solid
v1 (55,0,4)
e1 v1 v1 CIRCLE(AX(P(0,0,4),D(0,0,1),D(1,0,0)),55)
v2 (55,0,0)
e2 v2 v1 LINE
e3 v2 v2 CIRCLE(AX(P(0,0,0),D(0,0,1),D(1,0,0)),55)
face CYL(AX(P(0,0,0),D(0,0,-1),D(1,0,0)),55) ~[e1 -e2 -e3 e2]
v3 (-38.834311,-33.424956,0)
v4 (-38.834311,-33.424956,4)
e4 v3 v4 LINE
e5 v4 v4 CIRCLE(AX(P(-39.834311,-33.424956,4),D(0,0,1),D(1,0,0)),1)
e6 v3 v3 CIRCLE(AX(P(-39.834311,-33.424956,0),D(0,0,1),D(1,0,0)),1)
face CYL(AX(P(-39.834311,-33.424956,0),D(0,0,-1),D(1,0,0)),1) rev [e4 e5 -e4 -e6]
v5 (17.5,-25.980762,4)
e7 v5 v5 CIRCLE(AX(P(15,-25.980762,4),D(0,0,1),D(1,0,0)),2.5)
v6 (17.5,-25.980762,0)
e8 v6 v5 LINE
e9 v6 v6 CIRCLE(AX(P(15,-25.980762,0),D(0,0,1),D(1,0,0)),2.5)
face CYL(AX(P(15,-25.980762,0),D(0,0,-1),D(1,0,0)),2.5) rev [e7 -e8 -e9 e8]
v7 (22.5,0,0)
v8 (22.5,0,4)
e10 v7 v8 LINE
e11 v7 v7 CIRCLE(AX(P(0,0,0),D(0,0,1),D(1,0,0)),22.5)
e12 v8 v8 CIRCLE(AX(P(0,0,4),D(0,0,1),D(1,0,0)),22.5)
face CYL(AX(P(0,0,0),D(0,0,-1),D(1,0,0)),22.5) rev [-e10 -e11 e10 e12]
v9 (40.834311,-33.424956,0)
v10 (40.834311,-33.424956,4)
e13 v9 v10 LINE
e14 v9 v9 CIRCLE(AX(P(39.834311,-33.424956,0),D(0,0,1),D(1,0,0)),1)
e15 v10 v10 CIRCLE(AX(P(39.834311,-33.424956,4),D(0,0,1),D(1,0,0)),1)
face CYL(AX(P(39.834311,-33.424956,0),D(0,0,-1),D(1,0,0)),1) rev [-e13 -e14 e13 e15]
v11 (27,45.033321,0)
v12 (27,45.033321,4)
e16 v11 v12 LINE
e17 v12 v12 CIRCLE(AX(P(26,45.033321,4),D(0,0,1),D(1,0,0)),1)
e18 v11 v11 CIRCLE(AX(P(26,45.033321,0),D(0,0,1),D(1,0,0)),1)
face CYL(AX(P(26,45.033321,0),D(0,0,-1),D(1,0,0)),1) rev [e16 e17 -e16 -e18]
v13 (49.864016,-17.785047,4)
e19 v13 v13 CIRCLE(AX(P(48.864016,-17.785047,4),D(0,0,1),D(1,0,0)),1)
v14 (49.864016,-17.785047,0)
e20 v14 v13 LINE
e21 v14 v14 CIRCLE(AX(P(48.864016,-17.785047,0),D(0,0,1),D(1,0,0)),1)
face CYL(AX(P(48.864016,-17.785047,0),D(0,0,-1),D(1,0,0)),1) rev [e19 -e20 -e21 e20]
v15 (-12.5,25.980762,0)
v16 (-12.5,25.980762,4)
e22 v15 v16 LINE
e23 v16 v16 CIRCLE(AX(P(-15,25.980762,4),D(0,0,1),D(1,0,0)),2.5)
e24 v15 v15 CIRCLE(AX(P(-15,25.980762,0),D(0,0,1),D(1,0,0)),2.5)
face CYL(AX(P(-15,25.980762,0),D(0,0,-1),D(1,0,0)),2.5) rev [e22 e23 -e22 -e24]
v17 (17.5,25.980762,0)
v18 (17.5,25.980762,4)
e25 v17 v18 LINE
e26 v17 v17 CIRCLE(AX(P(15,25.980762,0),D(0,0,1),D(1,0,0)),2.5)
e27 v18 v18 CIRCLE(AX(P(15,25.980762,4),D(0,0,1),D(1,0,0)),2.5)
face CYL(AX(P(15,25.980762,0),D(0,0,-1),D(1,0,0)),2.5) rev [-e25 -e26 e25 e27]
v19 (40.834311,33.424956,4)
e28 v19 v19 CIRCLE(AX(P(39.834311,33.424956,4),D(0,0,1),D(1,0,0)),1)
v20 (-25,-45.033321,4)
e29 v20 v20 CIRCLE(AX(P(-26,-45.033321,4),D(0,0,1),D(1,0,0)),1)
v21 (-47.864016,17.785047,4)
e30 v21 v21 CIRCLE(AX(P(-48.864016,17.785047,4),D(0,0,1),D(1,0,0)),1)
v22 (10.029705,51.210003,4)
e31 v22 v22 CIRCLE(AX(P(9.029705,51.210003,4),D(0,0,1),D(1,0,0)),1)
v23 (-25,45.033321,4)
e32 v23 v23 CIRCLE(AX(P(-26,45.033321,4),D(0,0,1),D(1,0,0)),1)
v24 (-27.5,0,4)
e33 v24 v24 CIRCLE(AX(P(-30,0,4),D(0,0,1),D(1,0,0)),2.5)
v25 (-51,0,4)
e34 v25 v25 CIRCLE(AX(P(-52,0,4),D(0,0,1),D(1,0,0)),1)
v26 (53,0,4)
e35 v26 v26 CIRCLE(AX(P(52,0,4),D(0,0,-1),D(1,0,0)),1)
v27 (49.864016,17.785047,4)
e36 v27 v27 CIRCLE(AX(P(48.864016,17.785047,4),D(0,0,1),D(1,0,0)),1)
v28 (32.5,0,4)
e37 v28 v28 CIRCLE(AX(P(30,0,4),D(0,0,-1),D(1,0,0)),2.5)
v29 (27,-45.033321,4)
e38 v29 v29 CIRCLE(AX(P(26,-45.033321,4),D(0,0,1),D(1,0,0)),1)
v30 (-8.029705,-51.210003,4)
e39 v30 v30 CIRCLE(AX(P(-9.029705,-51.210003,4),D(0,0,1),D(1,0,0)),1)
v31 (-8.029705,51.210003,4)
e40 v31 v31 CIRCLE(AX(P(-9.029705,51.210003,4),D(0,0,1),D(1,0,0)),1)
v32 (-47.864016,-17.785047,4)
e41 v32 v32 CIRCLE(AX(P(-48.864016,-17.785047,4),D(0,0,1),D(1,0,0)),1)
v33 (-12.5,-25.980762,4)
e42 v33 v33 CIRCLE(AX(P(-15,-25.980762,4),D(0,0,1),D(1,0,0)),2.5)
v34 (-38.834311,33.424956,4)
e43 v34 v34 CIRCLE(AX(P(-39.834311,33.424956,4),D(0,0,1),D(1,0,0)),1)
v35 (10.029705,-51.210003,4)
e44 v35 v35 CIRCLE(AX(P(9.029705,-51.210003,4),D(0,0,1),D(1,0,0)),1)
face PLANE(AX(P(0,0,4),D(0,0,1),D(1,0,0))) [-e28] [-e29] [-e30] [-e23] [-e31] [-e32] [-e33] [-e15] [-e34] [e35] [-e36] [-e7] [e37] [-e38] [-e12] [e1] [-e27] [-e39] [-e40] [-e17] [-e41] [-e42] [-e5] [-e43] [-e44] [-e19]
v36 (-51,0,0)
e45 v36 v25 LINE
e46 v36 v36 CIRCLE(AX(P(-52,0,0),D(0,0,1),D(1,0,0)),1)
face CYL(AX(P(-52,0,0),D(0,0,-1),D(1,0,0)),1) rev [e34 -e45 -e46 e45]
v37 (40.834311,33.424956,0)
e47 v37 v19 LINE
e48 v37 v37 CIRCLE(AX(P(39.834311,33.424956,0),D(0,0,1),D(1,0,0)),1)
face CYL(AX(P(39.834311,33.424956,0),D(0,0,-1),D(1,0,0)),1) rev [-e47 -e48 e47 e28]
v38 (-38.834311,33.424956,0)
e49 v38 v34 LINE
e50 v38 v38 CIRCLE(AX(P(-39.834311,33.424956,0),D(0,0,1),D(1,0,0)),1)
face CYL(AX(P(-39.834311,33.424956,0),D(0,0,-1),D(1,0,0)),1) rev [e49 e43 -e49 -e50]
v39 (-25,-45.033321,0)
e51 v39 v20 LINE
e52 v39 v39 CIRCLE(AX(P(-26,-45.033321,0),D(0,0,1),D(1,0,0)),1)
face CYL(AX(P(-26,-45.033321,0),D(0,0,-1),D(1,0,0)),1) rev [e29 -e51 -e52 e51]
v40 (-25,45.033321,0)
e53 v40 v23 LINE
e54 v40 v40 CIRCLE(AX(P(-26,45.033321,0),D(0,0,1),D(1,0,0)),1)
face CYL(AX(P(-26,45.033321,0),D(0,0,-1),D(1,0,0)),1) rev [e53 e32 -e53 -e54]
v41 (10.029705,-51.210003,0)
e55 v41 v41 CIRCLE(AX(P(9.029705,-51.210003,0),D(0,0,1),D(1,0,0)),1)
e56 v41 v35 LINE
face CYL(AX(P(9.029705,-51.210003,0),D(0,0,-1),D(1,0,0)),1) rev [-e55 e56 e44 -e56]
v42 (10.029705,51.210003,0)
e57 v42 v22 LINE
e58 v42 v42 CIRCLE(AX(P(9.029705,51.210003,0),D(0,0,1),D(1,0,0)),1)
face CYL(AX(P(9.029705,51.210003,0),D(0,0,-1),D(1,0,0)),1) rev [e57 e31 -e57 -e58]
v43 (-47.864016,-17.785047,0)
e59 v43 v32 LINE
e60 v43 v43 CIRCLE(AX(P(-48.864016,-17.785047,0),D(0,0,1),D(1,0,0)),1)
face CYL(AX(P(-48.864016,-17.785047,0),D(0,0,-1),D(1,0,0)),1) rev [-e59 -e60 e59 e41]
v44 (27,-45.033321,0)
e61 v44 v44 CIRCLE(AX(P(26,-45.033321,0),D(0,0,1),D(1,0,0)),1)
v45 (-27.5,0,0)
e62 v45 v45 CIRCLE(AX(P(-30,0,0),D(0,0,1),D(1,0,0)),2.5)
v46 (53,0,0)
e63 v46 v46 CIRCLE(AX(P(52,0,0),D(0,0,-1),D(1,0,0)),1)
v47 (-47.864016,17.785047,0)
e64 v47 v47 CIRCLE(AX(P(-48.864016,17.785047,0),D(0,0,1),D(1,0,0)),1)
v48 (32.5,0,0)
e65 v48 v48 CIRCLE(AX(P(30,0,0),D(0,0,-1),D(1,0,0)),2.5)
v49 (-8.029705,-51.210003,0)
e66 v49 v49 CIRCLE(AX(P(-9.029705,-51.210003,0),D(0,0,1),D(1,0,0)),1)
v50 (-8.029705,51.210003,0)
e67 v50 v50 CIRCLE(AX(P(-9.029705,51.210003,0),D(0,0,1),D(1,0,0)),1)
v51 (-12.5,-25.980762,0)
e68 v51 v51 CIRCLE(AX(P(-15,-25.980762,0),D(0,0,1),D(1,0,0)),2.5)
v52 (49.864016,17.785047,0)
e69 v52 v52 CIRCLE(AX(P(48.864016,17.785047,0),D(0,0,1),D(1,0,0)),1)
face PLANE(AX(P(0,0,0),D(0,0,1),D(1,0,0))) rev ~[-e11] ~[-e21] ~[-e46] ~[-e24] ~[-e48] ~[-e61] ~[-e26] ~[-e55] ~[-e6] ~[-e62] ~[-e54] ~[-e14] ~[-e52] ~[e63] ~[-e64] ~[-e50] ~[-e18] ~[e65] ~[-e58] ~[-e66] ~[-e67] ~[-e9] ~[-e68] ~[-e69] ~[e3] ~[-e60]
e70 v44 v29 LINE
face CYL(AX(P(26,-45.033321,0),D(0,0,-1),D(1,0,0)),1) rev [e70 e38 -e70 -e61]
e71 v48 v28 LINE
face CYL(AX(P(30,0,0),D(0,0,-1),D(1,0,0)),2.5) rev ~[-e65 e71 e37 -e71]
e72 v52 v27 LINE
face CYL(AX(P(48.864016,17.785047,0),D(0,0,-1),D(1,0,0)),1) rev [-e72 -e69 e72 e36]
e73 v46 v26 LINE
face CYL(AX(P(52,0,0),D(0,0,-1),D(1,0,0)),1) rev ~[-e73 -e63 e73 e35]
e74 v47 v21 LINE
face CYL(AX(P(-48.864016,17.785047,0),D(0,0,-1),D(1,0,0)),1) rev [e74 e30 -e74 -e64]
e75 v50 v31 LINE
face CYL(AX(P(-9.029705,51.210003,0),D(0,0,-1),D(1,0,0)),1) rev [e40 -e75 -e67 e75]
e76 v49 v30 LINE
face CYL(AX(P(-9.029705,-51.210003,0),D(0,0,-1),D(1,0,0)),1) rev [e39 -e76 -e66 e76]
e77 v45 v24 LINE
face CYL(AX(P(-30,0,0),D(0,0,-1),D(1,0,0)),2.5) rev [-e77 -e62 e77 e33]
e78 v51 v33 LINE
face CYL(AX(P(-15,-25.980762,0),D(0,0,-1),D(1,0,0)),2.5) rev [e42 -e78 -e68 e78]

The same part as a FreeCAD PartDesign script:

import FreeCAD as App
import Part
import Sketcher
from FreeCAD import Vector
Q = App.Units.Quantity

doc = App.newDocument("Part")
body = doc.addObject("PartDesign::Body", "Body")

# Sketch on XY plane
sketch1 = body.newObject("Sketcher::SketchObject", "Sketch")
sketch1.AttachmentSupport = (doc.getObject("XY_Plane"), [""])
sketch1.MapMode = "FlatFace"
sketch1.addGeometry([
    Part.Circle(Vector(0, 0, 0), Vector(0, 0, 1), 55),  # 0
    Part.Circle(Vector(-39.8, -33.4, 0), Vector(0, 0, 1), 1),  # 1
    Part.Circle(Vector(-26, -45, 0), Vector(0, 0, 1), 1),  # 2
    Part.Circle(Vector(-9, -51.2, 0), Vector(0, 0, 1), 1),  # 3
    Part.Circle(Vector(-48.9, -17.8, 0), Vector(0, 0, 1), 1),  # 4
    Part.Circle(Vector(-15, -26, 0), Vector(0, 0, 1), 2.5),  # 5
    Part.Circle(Vector(9, -51.2, 0), Vector(0, 0, 1), 1),  # 6
    Part.Circle(Vector(26, -45, 0), Vector(0, 0, 1), 1),  # 7
    Part.Circle(Vector(39.8, -33.4, 0), Vector(0, 0, 1), 1),  # 8
    Part.Circle(Vector(15, -26, 0), Vector(0, 0, 1), 2.5),  # 9
    Part.Circle(Vector(48.9, -17.8, 0), Vector(0, 0, 1), 1),  # 10
    Part.Circle(Vector(-52, 0, 0), Vector(0, 0, 1), 1),  # 11
    Part.Circle(Vector(-30, 0, 0), Vector(0, 0, 1), 2.5),  # 12
    Part.Circle(Vector(-48.9, 17.8, 0), Vector(0, 0, 1), 1),  # 13
    Part.Circle(Vector(-15, 26, 0), Vector(0, 0, 1), 2.5),  # 14
    Part.Circle(Vector(-39.8, 33.4, 0), Vector(0, 0, 1), 1),  # 15
    Part.Circle(Vector(-26, 45, 0), Vector(0, 0, 1), 1),  # 16
    Part.Circle(Vector(-9, 51.2, 0), Vector(0, 0, 1), 1),  # 17
    Part.Circle(Vector(0, 0, 0), Vector(0, 0, 1), 22.5),  # 18
    Part.Circle(Vector(15, 26, 0), Vector(0, 0, 1), 2.5),  # 19
    Part.Circle(Vector(30, 0, 0), Vector(0, 0, 1), 2.5),  # 20
    Part.Circle(Vector(52, 0, 0), Vector(0, 0, 1), 1),  # 21
    Part.Circle(Vector(48.9, 17.8, 0), Vector(0, 0, 1), 1),  # 22
    Part.Circle(Vector(9, 51.2, 0), Vector(0, 0, 1), 1),  # 23
    Part.Circle(Vector(26, 45, 0), Vector(0, 0, 1), 1),  # 24
    Part.Circle(Vector(39.8, 33.4, 0), Vector(0, 0, 1), 1),  # 25
], False)
sketch1.addConstraint([
    Sketcher.Constraint("Coincident", 0, 3, -1, 1),
    Sketcher.Constraint("Coincident", 18, 3, -1, 1),
    Sketcher.Constraint("Equal", 1, 2),
    Sketcher.Constraint("Equal", 2, 3),
    Sketcher.Constraint("Equal", 3, 4),
    Sketcher.Constraint("Equal", 4, 6),
    Sketcher.Constraint("Equal", 6, 7),
    Sketcher.Constraint("Equal", 7, 8),
    Sketcher.Constraint("Equal", 5, 9),
    Sketcher.Constraint("Equal", 8, 10),
    Sketcher.Constraint("Equal", 10, 11),
    Sketcher.Constraint("Equal", 9, 12),
    Sketcher.Constraint("Equal", 11, 13),
    Sketcher.Constraint("Equal", 12, 14),
    Sketcher.Constraint("Equal", 13, 15),
    Sketcher.Constraint("Equal", 15, 16),
    Sketcher.Constraint("Equal", 16, 17),
    Sketcher.Constraint("Equal", 14, 19),
    Sketcher.Constraint("Equal", 19, 20),
    Sketcher.Constraint("Equal", 17, 21),
    Sketcher.Constraint("Equal", 21, 22),
    Sketcher.Constraint("Equal", 22, 23),
    Sketcher.Constraint("Equal", 23, 24),
    Sketcher.Constraint("Equal", 24, 25),
    Sketcher.Constraint("Symmetric", 10, 3, 13, 3, -1, 1),
    Sketcher.Constraint("Symmetric", 9, 3, 14, 3, -1, 1),
    Sketcher.Constraint("Symmetric", 8, 3, 15, 3, -1, 1),
    Sketcher.Constraint("Symmetric", 7, 3, 16, 3, -1, 1),
    Sketcher.Constraint("Symmetric", 6, 3, 17, 3, -1, 1),
    Sketcher.Constraint("Symmetric", 5, 3, 19, 3, -1, 1),
    Sketcher.Constraint("Symmetric", 12, 3, 20, 3, -1, 1),
    Sketcher.Constraint("Symmetric", 11, 3, 21, 3, -1, 1),
    Sketcher.Constraint("Symmetric", 4, 3, 22, 3, -1, 1),
    Sketcher.Constraint("Symmetric", 3, 3, 23, 3, -1, 1),
    Sketcher.Constraint("Symmetric", 2, 3, 24, 3, -1, 1),
    Sketcher.Constraint("Symmetric", 1, 3, 25, 3, -1, 1),
    Sketcher.Constraint("Symmetric", 3, 3, 6, 3, -2),
    Sketcher.Constraint("Symmetric", 2, 3, 7, 3, -2),
    Sketcher.Constraint("Symmetric", 1, 3, 8, 3, -2),
    Sketcher.Constraint("Symmetric", 5, 3, 9, 3, -2),
    Sketcher.Constraint("Symmetric", 4, 3, 10, 3, -2),
    Sketcher.Constraint("PointOnObject", 11, 3, -1),
    Sketcher.Constraint("PointOnObject", 12, 3, -1),
    Sketcher.Constraint("Diameter", 0, Q("110 mm")),
    Sketcher.Constraint("Diameter", 1, Q("2 mm")),
    Sketcher.Constraint("Diameter", 5, Q("5 mm")),
    Sketcher.Constraint("Diameter", 18, Q("45 mm")),
    Sketcher.Constraint("DistanceX", 2, 3, -1, 1, Q("26 mm")),
    Sketcher.Constraint("DistanceX", 5, 3, -1, 1, Q("15 mm")),
    Sketcher.Constraint("DistanceX", 11, 3, -1, 1, Q("52 mm")),
    Sketcher.Constraint("DistanceX", 12, 3, -1, 1, Q("30 mm")),
    Sketcher.Constraint("DistanceX", 1, 3, -1, 1, Q("39.834311 mm")),
    Sketcher.Constraint("DistanceY", 2, 3, -1, 1, Q("45.033321 mm")),
    Sketcher.Constraint("DistanceY", 5, 3, -1, 1, Q("25.980762 mm")),
    Sketcher.Constraint("DistanceY", 3, 3, 2, 3, Q("6.176682 mm")),
    Sketcher.Constraint("DistanceY", 1, 3, 4, 3, Q("15.639909 mm")),
    Sketcher.Constraint("DistanceX", 4, 3, 3, 3, Q("39.834311 mm")),
    Sketcher.Constraint("DistanceX", 3, 3, 6, 3, Q("18.05941 mm")),
    Sketcher.Constraint("DistanceY", 1, 3, -1, 1, Q("33.424956 mm")),
])
pad1 = body.newObject("PartDesign::Pad", "Pad")
pad1.Profile = sketch1
pad1.Length = 4

doc.recompute()
